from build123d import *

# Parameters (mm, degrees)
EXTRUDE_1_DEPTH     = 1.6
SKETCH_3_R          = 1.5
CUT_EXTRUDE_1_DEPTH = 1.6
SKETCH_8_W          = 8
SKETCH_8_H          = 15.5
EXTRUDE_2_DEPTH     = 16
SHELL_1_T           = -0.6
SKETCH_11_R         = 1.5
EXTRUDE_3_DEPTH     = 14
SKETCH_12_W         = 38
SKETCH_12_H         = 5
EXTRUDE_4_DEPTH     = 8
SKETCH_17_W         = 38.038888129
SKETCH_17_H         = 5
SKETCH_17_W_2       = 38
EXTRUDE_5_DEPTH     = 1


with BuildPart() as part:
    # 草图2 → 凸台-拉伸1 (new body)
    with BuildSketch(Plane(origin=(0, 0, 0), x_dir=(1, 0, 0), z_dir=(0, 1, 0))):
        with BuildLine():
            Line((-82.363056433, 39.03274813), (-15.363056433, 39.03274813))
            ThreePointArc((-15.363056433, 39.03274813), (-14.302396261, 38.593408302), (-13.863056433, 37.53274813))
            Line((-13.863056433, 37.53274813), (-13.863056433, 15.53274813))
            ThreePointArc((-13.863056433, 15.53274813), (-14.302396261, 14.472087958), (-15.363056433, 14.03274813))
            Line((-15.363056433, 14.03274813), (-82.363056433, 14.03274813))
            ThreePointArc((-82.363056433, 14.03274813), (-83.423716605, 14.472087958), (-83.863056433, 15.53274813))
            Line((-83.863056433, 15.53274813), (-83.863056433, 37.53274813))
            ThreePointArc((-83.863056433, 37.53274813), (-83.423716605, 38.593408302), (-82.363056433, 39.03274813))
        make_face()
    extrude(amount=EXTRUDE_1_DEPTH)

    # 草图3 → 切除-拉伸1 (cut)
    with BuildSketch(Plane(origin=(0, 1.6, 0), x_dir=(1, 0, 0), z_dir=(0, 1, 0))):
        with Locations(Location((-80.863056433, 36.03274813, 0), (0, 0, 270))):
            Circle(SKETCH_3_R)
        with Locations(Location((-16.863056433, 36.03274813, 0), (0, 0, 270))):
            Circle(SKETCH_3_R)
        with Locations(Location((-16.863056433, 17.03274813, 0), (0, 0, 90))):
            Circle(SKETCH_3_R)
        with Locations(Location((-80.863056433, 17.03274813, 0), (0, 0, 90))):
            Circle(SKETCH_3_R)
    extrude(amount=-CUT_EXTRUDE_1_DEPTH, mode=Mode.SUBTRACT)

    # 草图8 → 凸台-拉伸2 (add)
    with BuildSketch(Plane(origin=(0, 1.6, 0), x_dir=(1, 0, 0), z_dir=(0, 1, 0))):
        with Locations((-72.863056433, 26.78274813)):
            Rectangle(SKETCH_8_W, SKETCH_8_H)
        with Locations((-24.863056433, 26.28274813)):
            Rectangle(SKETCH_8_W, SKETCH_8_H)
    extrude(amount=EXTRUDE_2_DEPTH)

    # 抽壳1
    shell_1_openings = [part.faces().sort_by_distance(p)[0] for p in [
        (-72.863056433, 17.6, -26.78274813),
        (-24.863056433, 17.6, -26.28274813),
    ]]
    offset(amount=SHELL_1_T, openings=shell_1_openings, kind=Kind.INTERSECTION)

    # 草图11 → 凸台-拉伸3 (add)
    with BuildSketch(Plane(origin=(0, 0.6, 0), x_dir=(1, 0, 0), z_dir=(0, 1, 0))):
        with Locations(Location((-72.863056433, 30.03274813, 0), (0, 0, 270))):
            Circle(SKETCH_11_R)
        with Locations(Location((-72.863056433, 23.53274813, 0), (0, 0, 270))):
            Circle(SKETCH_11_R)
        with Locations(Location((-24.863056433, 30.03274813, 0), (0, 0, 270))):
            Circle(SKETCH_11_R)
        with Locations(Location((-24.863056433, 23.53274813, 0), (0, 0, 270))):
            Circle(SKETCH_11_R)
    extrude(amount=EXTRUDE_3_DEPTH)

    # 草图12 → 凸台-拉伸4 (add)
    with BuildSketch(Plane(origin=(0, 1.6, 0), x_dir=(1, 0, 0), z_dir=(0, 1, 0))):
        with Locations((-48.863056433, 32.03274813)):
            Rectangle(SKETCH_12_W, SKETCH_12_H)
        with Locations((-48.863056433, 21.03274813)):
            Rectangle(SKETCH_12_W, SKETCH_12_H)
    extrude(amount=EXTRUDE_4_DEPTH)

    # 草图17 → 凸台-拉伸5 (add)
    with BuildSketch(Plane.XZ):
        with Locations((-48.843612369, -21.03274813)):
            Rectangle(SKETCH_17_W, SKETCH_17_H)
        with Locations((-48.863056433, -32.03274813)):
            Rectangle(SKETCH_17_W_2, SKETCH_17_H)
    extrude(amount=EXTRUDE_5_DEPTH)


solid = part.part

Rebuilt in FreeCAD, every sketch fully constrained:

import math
import FreeCAD as App
import Part
import Sketcher

V = App.Vector


def faces_at(feature, points):
    """Names of the faces that lie closest to the given points."""
    faces = feature.Shape.Faces
    near = lambda p: min(range(len(faces)), key=lambda i: faces[i].distToShape(Part.Vertex(*p))[0])
    return sorted({f"Face{near(p) + 1}" for p in points})

doc = App.newDocument("Part")
body = doc.addObject("PartDesign::Body", "Body")

# Sketch on XZ plane
sketch1 = body.newObject("Sketcher::SketchObject", "Sketch")
sketch1.AttachmentSupport = (doc.getObject("XZ_Plane"), [""])
sketch1.MapMode = "FlatFace"
sketch1.addGeometry(Part.LineSegment(V(-15.363056, -39.032748, 0), V(-82.363056, -39.032748, 0)), False)
sketch1.addGeometry(Part.ArcOfCircle(Part.Circle(V(-82.363056, -37.532748, 0), V(0, 0, 1), 1.5), math.radians(180), math.radians(270)), False)
sketch1.addGeometry(Part.LineSegment(V(-83.863056, -37.532748, 0), V(-83.863056, -15.532748, 0)), False)
sketch1.addGeometry(Part.ArcOfCircle(Part.Circle(V(-82.363056, -15.532748, 0), V(0, 0, 1), 1.5), math.radians(90), math.radians(180)), False)
sketch1.addGeometry(Part.LineSegment(V(-82.363056, -14.032748, 0), V(-15.363056, -14.032748, 0)), False)
sketch1.addGeometry(Part.ArcOfCircle(Part.Circle(V(-15.363056, -15.532748, 0), V(0, 0, 1), 1.5), math.radians(0), math.radians(90)), False)
sketch1.addGeometry(Part.LineSegment(V(-13.863056, -15.532748, 0), V(-13.863056, -37.532748, 0)), False)
sketch1.addGeometry(Part.ArcOfCircle(Part.Circle(V(-15.363056, -37.532748, 0), V(0, 0, 1), 1.5), math.radians(-90), math.radians(0)), False)
sketch1.addConstraint(Sketcher.Constraint("Tangent", 0, 2, 1, 2))
sketch1.addConstraint(Sketcher.Constraint("Tangent", 1, 1, 2, 1))
sketch1.addConstraint(Sketcher.Constraint("Tangent", 2, 2, 3, 2))
sketch1.addConstraint(Sketcher.Constraint("Tangent", 3, 1, 4, 1))
sketch1.addConstraint(Sketcher.Constraint("Tangent", 4, 2, 5, 2))
sketch1.addConstraint(Sketcher.Constraint("Tangent", 5, 1, 6, 1))
sketch1.addConstraint(Sketcher.Constraint("Tangent", 6, 2, 7, 2))
sketch1.addConstraint(Sketcher.Constraint("Tangent", 7, 1, 0, 1))
sketch1.addConstraint(Sketcher.Constraint("Horizontal", 0))
sketch1.addConstraint(Sketcher.Constraint("Vertical", 2))
sketch1.addConstraint(Sketcher.Constraint("Horizontal", 4))
sketch1.addConstraint(Sketcher.Constraint("Vertical", 6))
sketch1.addConstraint(Sketcher.Constraint("Equal", 1, 3))
sketch1.addConstraint(Sketcher.Constraint("Equal", 3, 5))
sketch1.addConstraint(Sketcher.Constraint("Equal", 5, 7))
sketch1.addConstraint(Sketcher.Constraint("Radius", 1, 1.5))
sketch1.addConstraint(Sketcher.Constraint("DistanceX", 0, 2, 0, 1, 67.0))
sketch1.addConstraint(Sketcher.Constraint("DistanceY", 2, 1, 2, 2, 22.0))
sketch1.addConstraint(Sketcher.Constraint("DistanceY", 1, 3, -1, 1, 37.532748))
sketch1.addConstraint(Sketcher.Constraint("DistanceX", 1, 3, -1, 1, 82.363056))
pad1 = body.newObject("PartDesign::Pad", "Pad")
pad1.Profile = sketch1
pad1.Length = 1.6
pad1.Reversed = True

# Sketch on XZ plane
sketch2 = body.newObject("Sketcher::SketchObject", "Sketch001")
sketch2.AttachmentSupport = (doc.getObject("XZ_Plane"), [""])
sketch2.MapMode = "FlatFace"
sketch2.AttachmentOffset = App.Placement(V(0, 0, -1.6), App.Rotation())
sketch2.addGeometry(Part.Circle(V(-80.863056, -36.032748, 0), V(0, 0, 1), 1.5), False)
sketch2.addGeometry(Part.Circle(V(-16.863056, -36.032748, 0), V(0, 0, 1), 1.5), False)
sketch2.addGeometry(Part.Circle(V(-16.863056, -17.032748, 0), V(0, 0, 1), 1.5), False)
sketch2.addGeometry(Part.Circle(V(-80.863056, -17.032748, 0), V(0, 0, 1), 1.5), False)
sketch2.addConstraint(Sketcher.Constraint("Equal", 0, 1))
sketch2.addConstraint(Sketcher.Constraint("Equal", 1, 2))
sketch2.addConstraint(Sketcher.Constraint("Equal", 2, 3))
sketch2.addConstraint(Sketcher.Constraint("Horizontal", 0, 3, 1, 3))
sketch2.addConstraint(Sketcher.Constraint("Horizontal", 2, 3, 3, 3))
sketch2.addConstraint(Sketcher.Constraint("Vertical", 1, 3, 2, 3))
sketch2.addConstraint(Sketcher.Constraint("Vertical", 0, 3, 3, 3))
sketch2.addConstraint(Sketcher.Constraint("Diameter", 0, 3.0))
sketch2.addConstraint(Sketcher.Constraint("DistanceX", 0, 3, 1, 3, 64.0))
sketch2.addConstraint(Sketcher.Constraint("DistanceY", 1, 3, 2, 3, 19.0))
sketch2.addConstraint(Sketcher.Constraint("DistanceY", 0, 3, -1, 1, 36.032748))
sketch2.addConstraint(Sketcher.Constraint("DistanceX", 0, 3, -1, 1, 80.863056))
pocket1 = body.newObject("PartDesign::Pocket", "Pocket")
pocket1.Profile = sketch2
pocket1.Length = 1.6
pocket1.Reversed = True

# Sketch on XZ plane
sketch3 = body.newObject("Sketcher::SketchObject", "Sketch002")
sketch3.AttachmentSupport = (doc.getObject("XZ_Plane"), [""])
sketch3.MapMode = "FlatFace"
sketch3.AttachmentOffset = App.Placement(V(0, 0, -1.6), App.Rotation())
sketch3.addGeometry(Part.LineSegment(V(-76.863056, -34.532748, 0), V(-76.863056, -19.032748, 0)), False)
sketch3.addGeometry(Part.LineSegment(V(-76.863056, -19.032748, 0), V(-68.863056, -19.032748, 0)), False)
sketch3.addGeometry(Part.LineSegment(V(-68.863056, -19.032748, 0), V(-68.863056, -34.532748, 0)), False)
sketch3.addGeometry(Part.LineSegment(V(-68.863056, -34.532748, 0), V(-76.863056, -34.532748, 0)), False)
sketch3.addGeometry(Part.LineSegment(V(-28.863056, -34.032748, 0), V(-28.863056, -18.532748, 0)), False)
sketch3.addGeometry(Part.LineSegment(V(-28.863056, -18.532748, 0), V(-20.863056, -18.532748, 0)), False)
sketch3.addGeometry(Part.LineSegment(V(-20.863056, -18.532748, 0), V(-20.863056, -34.032748, 0)), False)
sketch3.addGeometry(Part.LineSegment(V(-20.863056, -34.032748, 0), V(-28.863056, -34.032748, 0)), False)
sketch3.addConstraint(Sketcher.Constraint("Coincident", 0, 2, 1, 1))
sketch3.addConstraint(Sketcher.Constraint("Coincident", 1, 2, 2, 1))
sketch3.addConstraint(Sketcher.Constraint("Coincident", 2, 2, 3, 1))
sketch3.addConstraint(Sketcher.Constraint("Coincident", 3, 2, 0, 1))
sketch3.addConstraint(Sketcher.Constraint("Coincident", 4, 2, 5, 1))
sketch3.addConstraint(Sketcher.Constraint("Coincident", 5, 2, 6, 1))
sketch3.addConstraint(Sketcher.Constraint("Coincident", 6, 2, 7, 1))
sketch3.addConstraint(Sketcher.Constraint("Coincident", 7, 2, 4, 1))
sketch3.addConstraint(Sketcher.Constraint("Vertical", 0))
sketch3.addConstraint(Sketcher.Constraint("Horizontal", 1))
sketch3.addConstraint(Sketcher.Constraint("Vertical", 2))
sketch3.addConstraint(Sketcher.Constraint("Horizontal", 3))
sketch3.addConstraint(Sketcher.Constraint("Vertical", 4))
sketch3.addConstraint(Sketcher.Constraint("Horizontal", 5))
sketch3.addConstraint(Sketcher.Constraint("Vertical", 6))
sketch3.addConstraint(Sketcher.Constraint("Horizontal", 7))
sketch3.addConstraint(Sketcher.Constraint("Equal", 3, 5))
sketch3.addConstraint(Sketcher.Constraint("Equal", 2, 4))
sketch3.addConstraint(Sketcher.Constraint("DistanceX", 1, 1, 1, 2, 8.0))
sketch3.addConstraint(Sketcher.Constraint("DistanceY", 0, 1, 0, 2, 15.5))
sketch3.addConstraint(Sketcher.Constraint("DistanceX", 1, 2, 4, 2, 40.0))
sketch3.addConstraint(Sketcher.Constraint("DistanceY", 2, 2, 4, 2, 16.0))
sketch3.addConstraint(Sketcher.Constraint("DistanceY", 0, 2, -1, 1, 19.032748))
sketch3.addConstraint(Sketcher.Constraint("DistanceX", 0, 2, -1, 1, 76.863056))
pad2 = body.newObject("PartDesign::Pad", "Pad001")
pad2.Profile = sketch3
pad2.Length = 16
pad2.Reversed = True
doc.recompute()

thickness = body.newObject("PartDesign::Thickness", "Thickness")
thickness.Base = (pad2, faces_at(pad2, [(-72.863, 17.6, -26.783), (-24.863, 17.6, -26.283)]))
thickness.Value = 0.6
thickness.Reversed = True
thickness.Join = "Intersection"

# Sketch on XZ plane
sketch4 = body.newObject("Sketcher::SketchObject", "Sketch003")
sketch4.AttachmentSupport = (doc.getObject("XZ_Plane"), [""])
sketch4.MapMode = "FlatFace"
sketch4.AttachmentOffset = App.Placement(V(0, 0, -0.6), App.Rotation())
sketch4.addGeometry(Part.Circle(V(-72.863056, -30.032748, 0), V(0, 0, 1), 1.5), False)
sketch4.addGeometry(Part.Circle(V(-72.863056, -23.532748, 0), V(0, 0, 1), 1.5), False)
sketch4.addGeometry(Part.Circle(V(-24.863056, -30.032748, 0), V(0, 0, 1), 1.5), False)
sketch4.addGeometry(Part.Circle(V(-24.863056, -23.532748, 0), V(0, 0, 1), 1.5), False)
sketch4.addConstraint(Sketcher.Constraint("Equal", 0, 1))
sketch4.addConstraint(Sketcher.Constraint("Equal", 1, 2))
sketch4.addConstraint(Sketcher.Constraint("Equal", 2, 3))
sketch4.addConstraint(Sketcher.Constraint("Horizontal", 0, 3, 2, 3))
sketch4.addConstraint(Sketcher.Constraint("Horizontal", 1, 3, 3, 3))
sketch4.addConstraint(Sketcher.Constraint("Vertical", 0, 3, 1, 3))
sketch4.addConstraint(Sketcher.Constraint("Vertical", 2, 3, 3, 3))
sketch4.addConstraint(Sketcher.Constraint("Diameter", 0, 3.0))
sketch4.addConstraint(Sketcher.Constraint("DistanceX", 0, 3, 2, 3, 48.0))
sketch4.addConstraint(Sketcher.Constraint("DistanceY", 0, 3, 1, 3, 6.5))
sketch4.addConstraint(Sketcher.Constraint("DistanceY", 0, 3, -1, 1, 30.032748))
sketch4.addConstraint(Sketcher.Constraint("DistanceX", 0, 3, -1, 1, 72.863056))
pad3 = body.newObject("PartDesign::Pad", "Pad002")
pad3.Profile = sketch4
pad3.Length = 14
pad3.Reversed = True

# Sketch on XZ plane
sketch5 = body.newObject("Sketcher::SketchObject", "Sketch004")
sketch5.AttachmentSupport = (doc.getObject("XZ_Plane"), [""])
sketch5.MapMode = "FlatFace"
sketch5.AttachmentOffset = App.Placement(V(0, 0, -1.6), App.Rotation())
sketch5.addGeometry(Part.LineSegment(V(-67.863056, -34.532748, 0), V(-67.863056, -29.532748, 0)), False)
sketch5.addGeometry(Part.LineSegment(V(-67.863056, -29.532748, 0), V(-29.863056, -29.532748, 0)), False)
sketch5.addGeometry(Part.LineSegment(V(-29.863056, -29.532748, 0), V(-29.863056, -34.532748, 0)), False)
sketch5.addGeometry(Part.LineSegment(V(-29.863056, -34.532748, 0), V(-67.863056, -34.532748, 0)), False)
sketch5.addGeometry(Part.LineSegment(V(-67.863056, -23.532748, 0), V(-67.863056, -18.532748, 0)), False)
sketch5.addGeometry(Part.LineSegment(V(-67.863056, -18.532748, 0), V(-29.863056, -18.532748, 0)), False)
sketch5.addGeometry(Part.LineSegment(V(-29.863056, -18.532748, 0), V(-29.863056, -23.532748, 0)), False)
sketch5.addGeometry(Part.LineSegment(V(-29.863056, -23.532748, 0), V(-67.863056, -23.532748, 0)), False)
sketch5.addConstraint(Sketcher.Constraint("Coincident", 0, 2, 1, 1))
sketch5.addConstraint(Sketcher.Constraint("Coincident", 1, 2, 2, 1))
sketch5.addConstraint(Sketcher.Constraint("Coincident", 2, 2, 3, 1))
sketch5.addConstraint(Sketcher.Constraint("Coincident", 3, 2, 0, 1))
sketch5.addConstraint(Sketcher.Constraint("Coincident", 4, 2, 5, 1))
sketch5.addConstraint(Sketcher.Constraint("Coincident", 5, 2, 6, 1))
sketch5.addConstraint(Sketcher.Constraint("Coincident", 6, 2, 7, 1))
sketch5.addConstraint(Sketcher.Constraint("Coincident", 7, 2, 4, 1))
sketch5.addConstraint(Sketcher.Constraint("Vertical", 0))
sketch5.addConstraint(Sketcher.Constraint("Horizontal", 1))
sketch5.addConstraint(Sketcher.Constraint("Vertical", 2))
sketch5.addConstraint(Sketcher.Constraint("Horizontal", 3))
sketch5.addConstraint(Sketcher.Constraint("Vertical", 4))
sketch5.addConstraint(Sketcher.Constraint("Horizontal", 5))
sketch5.addConstraint(Sketcher.Constraint("Vertical", 6))
sketch5.addConstraint(Sketcher.Constraint("Horizontal", 7))
sketch5.addConstraint(Sketcher.Constraint("Vertical", 3, 2, 4, 2))
sketch5.addConstraint(Sketcher.Constraint("Vertical", 2, 2, 5, 2))
sketch5.addConstraint(Sketcher.Constraint("Equal", 2, 4))
sketch5.addConstraint(Sketcher.Constraint("DistanceX", 1, 1, 1, 2, 38.0))
sketch5.addConstraint(Sketcher.Constraint("DistanceY", 0, 1, 0, 2, 5.0))
sketch5.addConstraint(Sketcher.Constraint("DistanceY", 0, 2, 4, 2, 11.0))
sketch5.addConstraint(Sketcher.Constraint("DistanceY", 0, 2, -1, 1, 29.532748))
sketch5.addConstraint(Sketcher.Constraint("DistanceX", 0, 2, -1, 1, 67.863056))
pad4 = body.newObject("PartDesign::Pad", "Pad003")
pad4.Profile = sketch5
pad4.Length = 8
pad4.Reversed = True

# Sketch on XZ plane
sketch6 = body.newObject("Sketcher::SketchObject", "Sketch005")
sketch6.AttachmentSupport = (doc.getObject("XZ_Plane"), [""])
sketch6.MapMode = "FlatFace"
sketch6.addGeometry(Part.LineSegment(V(-67.863056, -18.532748, 0), V(-67.863056, -23.532748, 0)), False)
sketch6.addGeometry(Part.LineSegment(V(-67.863056, -23.532748, 0), V(-29.824168, -23.532748, 0)), False)
sketch6.addGeometry(Part.LineSegment(V(-29.824168, -23.532748, 0), V(-29.824168, -18.532748, 0)), False)
sketch6.addGeometry(Part.LineSegment(V(-29.824168, -18.532748, 0), V(-67.863056, -18.532748, 0)), False)
sketch6.addGeometry(Part.LineSegment(V(-67.863056, -29.532748, 0), V(-67.863056, -34.532748, 0)), False)
sketch6.addGeometry(Part.LineSegment(V(-67.863056, -34.532748, 0), V(-29.863056, -34.532748, 0)), False)
sketch6.addGeometry(Part.LineSegment(V(-29.863056, -34.532748, 0), V(-29.863056, -29.532748, 0)), False)
sketch6.addGeometry(Part.LineSegment(V(-29.863056, -29.532748, 0), V(-67.863056, -29.532748, 0)), False)
sketch6.addConstraint(Sketcher.Constraint("Coincident", 0, 2, 1, 1))
sketch6.addConstraint(Sketcher.Constraint("Coincident", 1, 2, 2, 1))
sketch6.addConstraint(Sketcher.Constraint("Coincident", 2, 2, 3, 1))
sketch6.addConstraint(Sketcher.Constraint("Coincident", 3, 2, 0, 1))
sketch6.addConstraint(Sketcher.Constraint("Coincident", 4, 2, 5, 1))
sketch6.addConstraint(Sketcher.Constraint("Coincident", 5, 2, 6, 1))
sketch6.addConstraint(Sketcher.Constraint("Coincident", 6, 2, 7, 1))
sketch6.addConstraint(Sketcher.Constraint("Coincident", 7, 2, 4, 1))
sketch6.addConstraint(Sketcher.Constraint("Vertical", 0))
sketch6.addConstraint(Sketcher.Constraint("Horizontal", 1))
sketch6.addConstraint(Sketcher.Constraint("Vertical", 2))
sketch6.addConstraint(Sketcher.Constraint("Horizontal", 3))
sketch6.addConstraint(Sketcher.Constraint("Vertical", 4))
sketch6.addConstraint(Sketcher.Constraint("Horizontal", 5))
sketch6.addConstraint(Sketcher.Constraint("Vertical", 6))
sketch6.addConstraint(Sketcher.Constraint("Horizontal", 7))
sketch6.addConstraint(Sketcher.Constraint("Vertical", 3, 2, 4, 2))
sketch6.addConstraint(Sketcher.Constraint("Equal", 2, 4))
sketch6.addConstraint(Sketcher.Constraint("DistanceX", 5, 1, 5, 2, 38.0))
sketch6.addConstraint(Sketcher.Constraint("DistanceY", 0, 2, 0, 1, 5.0))
sketch6.addConstraint(Sketcher.Constraint("DistanceY", 4, 2, 0, 2, 11.0))
sketch6.addConstraint(Sketcher.Constraint("DistanceX", 1, 1, 1, 2, 38.038888))
sketch6.addConstraint(Sketcher.Constraint("DistanceY", 0, 2, -1, 1, 23.532748))
sketch6.addConstraint(Sketcher.Constraint("DistanceX", 1, 2, -1, 1, 29.824168))
pad5 = body.newObject("PartDesign::Pad", "Pad004")
pad5.Profile = sketch6
pad5.Length = 1

doc.recompute()
